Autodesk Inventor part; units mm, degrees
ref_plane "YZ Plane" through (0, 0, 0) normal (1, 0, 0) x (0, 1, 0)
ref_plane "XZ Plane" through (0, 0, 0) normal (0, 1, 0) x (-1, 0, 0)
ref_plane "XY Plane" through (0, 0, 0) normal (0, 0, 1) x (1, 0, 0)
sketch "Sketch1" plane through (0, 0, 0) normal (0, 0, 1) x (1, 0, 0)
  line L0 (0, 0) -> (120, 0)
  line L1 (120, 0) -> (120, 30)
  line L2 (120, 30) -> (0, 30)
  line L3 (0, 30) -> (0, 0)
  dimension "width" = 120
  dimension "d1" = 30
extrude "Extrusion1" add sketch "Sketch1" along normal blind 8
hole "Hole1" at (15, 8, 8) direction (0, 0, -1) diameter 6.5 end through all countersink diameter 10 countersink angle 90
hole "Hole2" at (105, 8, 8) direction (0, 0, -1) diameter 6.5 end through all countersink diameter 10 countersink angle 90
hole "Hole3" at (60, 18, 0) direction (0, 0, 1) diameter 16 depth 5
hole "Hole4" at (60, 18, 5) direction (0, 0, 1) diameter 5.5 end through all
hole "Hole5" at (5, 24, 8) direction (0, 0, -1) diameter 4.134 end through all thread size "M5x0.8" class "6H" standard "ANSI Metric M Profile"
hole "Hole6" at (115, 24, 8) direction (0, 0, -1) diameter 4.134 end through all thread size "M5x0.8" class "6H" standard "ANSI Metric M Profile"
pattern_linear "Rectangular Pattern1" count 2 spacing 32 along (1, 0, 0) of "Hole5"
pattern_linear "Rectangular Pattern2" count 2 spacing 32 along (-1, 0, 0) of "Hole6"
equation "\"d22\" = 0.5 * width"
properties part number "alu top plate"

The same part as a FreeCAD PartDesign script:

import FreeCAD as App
import Part
import Sketcher

V = App.Vector
Q = App.Units.Quantity

doc = App.newDocument("Part")
body = doc.addObject("PartDesign::Body", "Body")

# Sketch on XY plane
sketch1 = body.newObject("Sketcher::SketchObject", "Sketch")
sketch1.AttachmentSupport = (doc.getObject("XY_Plane"), [""])
sketch1.MapMode = "FlatFace"
sketch1.addGeometry(Part.LineSegment(V(0, 30, 0), V(0, 0, 0)), False)
sketch1.addGeometry(Part.LineSegment(V(0, 0, 0), V(120, 0, 0)), False)
sketch1.addGeometry(Part.LineSegment(V(120, 0, 0), V(120, 30, 0)), False)
sketch1.addGeometry(Part.LineSegment(V(120, 30, 0), V(0, 30, 0)), False)
sketch1.addConstraint(Sketcher.Constraint("Coincident", 0, 2, 1, 1))
sketch1.addConstraint(Sketcher.Constraint("Coincident", 1, 2, 2, 1))
sketch1.addConstraint(Sketcher.Constraint("Coincident", 2, 2, 3, 1))
sketch1.addConstraint(Sketcher.Constraint("Coincident", 3, 2, 0, 1))
sketch1.addConstraint(Sketcher.Constraint("Vertical", 0))
sketch1.addConstraint(Sketcher.Constraint("Horizontal", 1))
sketch1.addConstraint(Sketcher.Constraint("Vertical", 2))
sketch1.addConstraint(Sketcher.Constraint("Horizontal", 3))
sketch1.addConstraint(Sketcher.Constraint("Coincident", 0, 2, -1, 1))
sketch1.addConstraint(Sketcher.Constraint("DistanceX", 1, 1, 1, 2, Q("120 mm")))
sketch1.addConstraint(Sketcher.Constraint("DistanceY", 0, 2, 0, 1, Q("30 mm")))
pad1 = body.newObject("PartDesign::Pad", "Pad")
pad1.Profile = sketch1
pad1.Length = 8

# Sketch on XY plane
sketch2 = body.newObject("Sketcher::SketchObject", "Sketch001")
sketch2.AttachmentSupport = (doc.getObject("XY_Plane"), [""])
sketch2.MapMode = "FlatFace"
sketch2.AttachmentOffset = App.Placement(V(0, 0, 8), App.Rotation())
sketch2.addGeometry(Part.Circle(V(15, 8, 0), V(0, 0, 1), 3.25), False)
sketch2.addConstraint(Sketcher.Constraint("Diameter", 0, Q("6.5 mm")))
sketch2.addConstraint(Sketcher.Constraint("DistanceX", -1, 1, 0, 3, Q("15 mm")))
sketch2.addConstraint(Sketcher.Constraint("DistanceY", -1, 1, 0, 3, Q("8 mm")))
doc.recompute()
hole = body.newObject("PartDesign::Hole", "Hole")
hole.Profile = sketch2
hole.ThreadType = "None"
hole.Diameter = 6.5
hole.DepthType = "ThroughAll"
hole.HoleCutType = "Countersink"
hole.HoleCutDiameter = 10
hole.HoleCutCountersinkAngle = 90

# Sketch on XY plane
sketch3 = body.newObject("Sketcher::SketchObject", "Sketch002")
sketch3.AttachmentSupport = (doc.getObject("XY_Plane"), [""])
sketch3.MapMode = "FlatFace"
sketch3.AttachmentOffset = App.Placement(V(0, 0, 8), App.Rotation())
sketch3.addGeometry(Part.Circle(V(105, 8, 0), V(0, 0, 1), 3.25), False)
sketch3.addConstraint(Sketcher.Constraint("Diameter", 0, Q("6.5 mm")))
sketch3.addConstraint(Sketcher.Constraint("DistanceX", -1, 1, 0, 3, Q("105 mm")))
sketch3.addConstraint(Sketcher.Constraint("DistanceY", -1, 1, 0, 3, Q("8 mm")))
doc.recompute()
hole2 = body.newObject("PartDesign::Hole", "Hole001")
hole2.Profile = sketch3
hole2.ThreadType = "None"
hole2.Diameter = 6.5
hole2.DepthType = "ThroughAll"
hole2.HoleCutType = "Countersink"
hole2.HoleCutDiameter = 10
hole2.HoleCutCountersinkAngle = 90

# Sketch on XY plane
sketch4 = body.newObject("Sketcher::SketchObject", "Sketch003")
sketch4.AttachmentSupport = (doc.getObject("XY_Plane"), [""])
sketch4.MapMode = "FlatFace"
sketch4.addGeometry(Part.Circle(V(60, 18, 0), V(0, 0, 1), 8), False)
sketch4.addConstraint(Sketcher.Constraint("Diameter", 0, Q("16 mm")))
sketch4.addConstraint(Sketcher.Constraint("DistanceX", -1, 1, 0, 3, Q("60 mm")))
sketch4.addConstraint(Sketcher.Constraint("DistanceY", -1, 1, 0, 3, Q("18 mm")))
doc.recompute()
hole3 = body.newObject("PartDesign::Hole", "Hole002")
hole3.Profile = sketch4
hole3.ThreadType = "None"
hole3.Diameter = 16
hole3.DepthType = "Dimension"
hole3.Depth = 5
hole3.DrillPoint = "Flat"
hole3.Reversed = True

# Sketch on XY plane
sketch5 = body.newObject("Sketcher::SketchObject", "Sketch004")
sketch5.AttachmentSupport = (doc.getObject("XY_Plane"), [""])
sketch5.MapMode = "FlatFace"
sketch5.AttachmentOffset = App.Placement(V(0, 0, 5), App.Rotation())
sketch5.addGeometry(Part.Circle(V(60, 18, 0), V(0, 0, 1), 2.75), False)
sketch5.addConstraint(Sketcher.Constraint("Diameter", 0, Q("5.5 mm")))
sketch5.addConstraint(Sketcher.Constraint("DistanceX", -1, 1, 0, 3, Q("60 mm")))
sketch5.addConstraint(Sketcher.Constraint("DistanceY", -1, 1, 0, 3, Q("18 mm")))
doc.recompute()
hole4 = body.newObject("PartDesign::Hole", "Hole003")
hole4.Profile = sketch5
hole4.ThreadType = "None"
hole4.Diameter = 5.5
hole4.DepthType = "ThroughAll"
hole4.Reversed = True

# Sketch on XY plane
sketch6 = body.newObject("Sketcher::SketchObject", "Sketch005")
sketch6.AttachmentSupport = (doc.getObject("XY_Plane"), [""])
sketch6.MapMode = "FlatFace"
sketch6.AttachmentOffset = App.Placement(V(0, 0, 8), App.Rotation())
sketch6.addGeometry(Part.Circle(V(5, 24, 0), V(0, 0, 1), 2.067), False)
sketch6.addConstraint(Sketcher.Constraint("Diameter", 0, Q("4.134 mm")))
sketch6.addConstraint(Sketcher.Constraint("DistanceX", -1, 1, 0, 3, Q("5 mm")))
sketch6.addConstraint(Sketcher.Constraint("DistanceY", -1, 1, 0, 3, Q("24 mm")))
doc.recompute()
hole5 = body.newObject("PartDesign::Hole", "Hole004")
hole5.Profile = sketch6
hole5.ThreadType = "None"
hole5.Diameter = 4.134
hole5.DepthType = "ThroughAll"

# Sketch on XY plane
sketch7 = body.newObject("Sketcher::SketchObject", "Sketch006")
sketch7.AttachmentSupport = (doc.getObject("XY_Plane"), [""])
sketch7.MapMode = "FlatFace"
sketch7.AttachmentOffset = App.Placement(V(0, 0, 8), App.Rotation())
sketch7.addGeometry(Part.Circle(V(115, 24, 0), V(0, 0, 1), 2.067), False)
sketch7.addConstraint(Sketcher.Constraint("Diameter", 0, Q("4.134 mm")))
sketch7.addConstraint(Sketcher.Constraint("DistanceX", -1, 1, 0, 3, Q("115 mm")))
sketch7.addConstraint(Sketcher.Constraint("DistanceY", -1, 1, 0, 3, Q("24 mm")))
doc.recompute()
hole6 = body.newObject("PartDesign::Hole", "Hole005")
hole6.Profile = sketch7
hole6.ThreadType = "None"
hole6.Diameter = 4.134
hole6.DepthType = "ThroughAll"
doc.recompute()

linearpattern = body.newObject("PartDesign::LinearPattern", "LinearPattern")
linearpattern.Originals = [hole5]
linearpattern.Direction = (doc.getObject("X_Axis"), [""])
linearpattern.Mode = "offset"
linearpattern.Offset = 32
linearpattern.Occurrences = 2
body.Tip = linearpattern
doc.recompute()

linearpattern2 = body.newObject("PartDesign::LinearPattern", "LinearPattern001")
linearpattern2.Originals = [hole6]
linearpattern2.Direction = (doc.getObject("X_Axis"), [""])
linearpattern2.Mode = "offset"
linearpattern2.Offset = 32
linearpattern2.Occurrences = 2
linearpattern2.Reversed = True
body.Tip = linearpattern2

doc.recompute()
